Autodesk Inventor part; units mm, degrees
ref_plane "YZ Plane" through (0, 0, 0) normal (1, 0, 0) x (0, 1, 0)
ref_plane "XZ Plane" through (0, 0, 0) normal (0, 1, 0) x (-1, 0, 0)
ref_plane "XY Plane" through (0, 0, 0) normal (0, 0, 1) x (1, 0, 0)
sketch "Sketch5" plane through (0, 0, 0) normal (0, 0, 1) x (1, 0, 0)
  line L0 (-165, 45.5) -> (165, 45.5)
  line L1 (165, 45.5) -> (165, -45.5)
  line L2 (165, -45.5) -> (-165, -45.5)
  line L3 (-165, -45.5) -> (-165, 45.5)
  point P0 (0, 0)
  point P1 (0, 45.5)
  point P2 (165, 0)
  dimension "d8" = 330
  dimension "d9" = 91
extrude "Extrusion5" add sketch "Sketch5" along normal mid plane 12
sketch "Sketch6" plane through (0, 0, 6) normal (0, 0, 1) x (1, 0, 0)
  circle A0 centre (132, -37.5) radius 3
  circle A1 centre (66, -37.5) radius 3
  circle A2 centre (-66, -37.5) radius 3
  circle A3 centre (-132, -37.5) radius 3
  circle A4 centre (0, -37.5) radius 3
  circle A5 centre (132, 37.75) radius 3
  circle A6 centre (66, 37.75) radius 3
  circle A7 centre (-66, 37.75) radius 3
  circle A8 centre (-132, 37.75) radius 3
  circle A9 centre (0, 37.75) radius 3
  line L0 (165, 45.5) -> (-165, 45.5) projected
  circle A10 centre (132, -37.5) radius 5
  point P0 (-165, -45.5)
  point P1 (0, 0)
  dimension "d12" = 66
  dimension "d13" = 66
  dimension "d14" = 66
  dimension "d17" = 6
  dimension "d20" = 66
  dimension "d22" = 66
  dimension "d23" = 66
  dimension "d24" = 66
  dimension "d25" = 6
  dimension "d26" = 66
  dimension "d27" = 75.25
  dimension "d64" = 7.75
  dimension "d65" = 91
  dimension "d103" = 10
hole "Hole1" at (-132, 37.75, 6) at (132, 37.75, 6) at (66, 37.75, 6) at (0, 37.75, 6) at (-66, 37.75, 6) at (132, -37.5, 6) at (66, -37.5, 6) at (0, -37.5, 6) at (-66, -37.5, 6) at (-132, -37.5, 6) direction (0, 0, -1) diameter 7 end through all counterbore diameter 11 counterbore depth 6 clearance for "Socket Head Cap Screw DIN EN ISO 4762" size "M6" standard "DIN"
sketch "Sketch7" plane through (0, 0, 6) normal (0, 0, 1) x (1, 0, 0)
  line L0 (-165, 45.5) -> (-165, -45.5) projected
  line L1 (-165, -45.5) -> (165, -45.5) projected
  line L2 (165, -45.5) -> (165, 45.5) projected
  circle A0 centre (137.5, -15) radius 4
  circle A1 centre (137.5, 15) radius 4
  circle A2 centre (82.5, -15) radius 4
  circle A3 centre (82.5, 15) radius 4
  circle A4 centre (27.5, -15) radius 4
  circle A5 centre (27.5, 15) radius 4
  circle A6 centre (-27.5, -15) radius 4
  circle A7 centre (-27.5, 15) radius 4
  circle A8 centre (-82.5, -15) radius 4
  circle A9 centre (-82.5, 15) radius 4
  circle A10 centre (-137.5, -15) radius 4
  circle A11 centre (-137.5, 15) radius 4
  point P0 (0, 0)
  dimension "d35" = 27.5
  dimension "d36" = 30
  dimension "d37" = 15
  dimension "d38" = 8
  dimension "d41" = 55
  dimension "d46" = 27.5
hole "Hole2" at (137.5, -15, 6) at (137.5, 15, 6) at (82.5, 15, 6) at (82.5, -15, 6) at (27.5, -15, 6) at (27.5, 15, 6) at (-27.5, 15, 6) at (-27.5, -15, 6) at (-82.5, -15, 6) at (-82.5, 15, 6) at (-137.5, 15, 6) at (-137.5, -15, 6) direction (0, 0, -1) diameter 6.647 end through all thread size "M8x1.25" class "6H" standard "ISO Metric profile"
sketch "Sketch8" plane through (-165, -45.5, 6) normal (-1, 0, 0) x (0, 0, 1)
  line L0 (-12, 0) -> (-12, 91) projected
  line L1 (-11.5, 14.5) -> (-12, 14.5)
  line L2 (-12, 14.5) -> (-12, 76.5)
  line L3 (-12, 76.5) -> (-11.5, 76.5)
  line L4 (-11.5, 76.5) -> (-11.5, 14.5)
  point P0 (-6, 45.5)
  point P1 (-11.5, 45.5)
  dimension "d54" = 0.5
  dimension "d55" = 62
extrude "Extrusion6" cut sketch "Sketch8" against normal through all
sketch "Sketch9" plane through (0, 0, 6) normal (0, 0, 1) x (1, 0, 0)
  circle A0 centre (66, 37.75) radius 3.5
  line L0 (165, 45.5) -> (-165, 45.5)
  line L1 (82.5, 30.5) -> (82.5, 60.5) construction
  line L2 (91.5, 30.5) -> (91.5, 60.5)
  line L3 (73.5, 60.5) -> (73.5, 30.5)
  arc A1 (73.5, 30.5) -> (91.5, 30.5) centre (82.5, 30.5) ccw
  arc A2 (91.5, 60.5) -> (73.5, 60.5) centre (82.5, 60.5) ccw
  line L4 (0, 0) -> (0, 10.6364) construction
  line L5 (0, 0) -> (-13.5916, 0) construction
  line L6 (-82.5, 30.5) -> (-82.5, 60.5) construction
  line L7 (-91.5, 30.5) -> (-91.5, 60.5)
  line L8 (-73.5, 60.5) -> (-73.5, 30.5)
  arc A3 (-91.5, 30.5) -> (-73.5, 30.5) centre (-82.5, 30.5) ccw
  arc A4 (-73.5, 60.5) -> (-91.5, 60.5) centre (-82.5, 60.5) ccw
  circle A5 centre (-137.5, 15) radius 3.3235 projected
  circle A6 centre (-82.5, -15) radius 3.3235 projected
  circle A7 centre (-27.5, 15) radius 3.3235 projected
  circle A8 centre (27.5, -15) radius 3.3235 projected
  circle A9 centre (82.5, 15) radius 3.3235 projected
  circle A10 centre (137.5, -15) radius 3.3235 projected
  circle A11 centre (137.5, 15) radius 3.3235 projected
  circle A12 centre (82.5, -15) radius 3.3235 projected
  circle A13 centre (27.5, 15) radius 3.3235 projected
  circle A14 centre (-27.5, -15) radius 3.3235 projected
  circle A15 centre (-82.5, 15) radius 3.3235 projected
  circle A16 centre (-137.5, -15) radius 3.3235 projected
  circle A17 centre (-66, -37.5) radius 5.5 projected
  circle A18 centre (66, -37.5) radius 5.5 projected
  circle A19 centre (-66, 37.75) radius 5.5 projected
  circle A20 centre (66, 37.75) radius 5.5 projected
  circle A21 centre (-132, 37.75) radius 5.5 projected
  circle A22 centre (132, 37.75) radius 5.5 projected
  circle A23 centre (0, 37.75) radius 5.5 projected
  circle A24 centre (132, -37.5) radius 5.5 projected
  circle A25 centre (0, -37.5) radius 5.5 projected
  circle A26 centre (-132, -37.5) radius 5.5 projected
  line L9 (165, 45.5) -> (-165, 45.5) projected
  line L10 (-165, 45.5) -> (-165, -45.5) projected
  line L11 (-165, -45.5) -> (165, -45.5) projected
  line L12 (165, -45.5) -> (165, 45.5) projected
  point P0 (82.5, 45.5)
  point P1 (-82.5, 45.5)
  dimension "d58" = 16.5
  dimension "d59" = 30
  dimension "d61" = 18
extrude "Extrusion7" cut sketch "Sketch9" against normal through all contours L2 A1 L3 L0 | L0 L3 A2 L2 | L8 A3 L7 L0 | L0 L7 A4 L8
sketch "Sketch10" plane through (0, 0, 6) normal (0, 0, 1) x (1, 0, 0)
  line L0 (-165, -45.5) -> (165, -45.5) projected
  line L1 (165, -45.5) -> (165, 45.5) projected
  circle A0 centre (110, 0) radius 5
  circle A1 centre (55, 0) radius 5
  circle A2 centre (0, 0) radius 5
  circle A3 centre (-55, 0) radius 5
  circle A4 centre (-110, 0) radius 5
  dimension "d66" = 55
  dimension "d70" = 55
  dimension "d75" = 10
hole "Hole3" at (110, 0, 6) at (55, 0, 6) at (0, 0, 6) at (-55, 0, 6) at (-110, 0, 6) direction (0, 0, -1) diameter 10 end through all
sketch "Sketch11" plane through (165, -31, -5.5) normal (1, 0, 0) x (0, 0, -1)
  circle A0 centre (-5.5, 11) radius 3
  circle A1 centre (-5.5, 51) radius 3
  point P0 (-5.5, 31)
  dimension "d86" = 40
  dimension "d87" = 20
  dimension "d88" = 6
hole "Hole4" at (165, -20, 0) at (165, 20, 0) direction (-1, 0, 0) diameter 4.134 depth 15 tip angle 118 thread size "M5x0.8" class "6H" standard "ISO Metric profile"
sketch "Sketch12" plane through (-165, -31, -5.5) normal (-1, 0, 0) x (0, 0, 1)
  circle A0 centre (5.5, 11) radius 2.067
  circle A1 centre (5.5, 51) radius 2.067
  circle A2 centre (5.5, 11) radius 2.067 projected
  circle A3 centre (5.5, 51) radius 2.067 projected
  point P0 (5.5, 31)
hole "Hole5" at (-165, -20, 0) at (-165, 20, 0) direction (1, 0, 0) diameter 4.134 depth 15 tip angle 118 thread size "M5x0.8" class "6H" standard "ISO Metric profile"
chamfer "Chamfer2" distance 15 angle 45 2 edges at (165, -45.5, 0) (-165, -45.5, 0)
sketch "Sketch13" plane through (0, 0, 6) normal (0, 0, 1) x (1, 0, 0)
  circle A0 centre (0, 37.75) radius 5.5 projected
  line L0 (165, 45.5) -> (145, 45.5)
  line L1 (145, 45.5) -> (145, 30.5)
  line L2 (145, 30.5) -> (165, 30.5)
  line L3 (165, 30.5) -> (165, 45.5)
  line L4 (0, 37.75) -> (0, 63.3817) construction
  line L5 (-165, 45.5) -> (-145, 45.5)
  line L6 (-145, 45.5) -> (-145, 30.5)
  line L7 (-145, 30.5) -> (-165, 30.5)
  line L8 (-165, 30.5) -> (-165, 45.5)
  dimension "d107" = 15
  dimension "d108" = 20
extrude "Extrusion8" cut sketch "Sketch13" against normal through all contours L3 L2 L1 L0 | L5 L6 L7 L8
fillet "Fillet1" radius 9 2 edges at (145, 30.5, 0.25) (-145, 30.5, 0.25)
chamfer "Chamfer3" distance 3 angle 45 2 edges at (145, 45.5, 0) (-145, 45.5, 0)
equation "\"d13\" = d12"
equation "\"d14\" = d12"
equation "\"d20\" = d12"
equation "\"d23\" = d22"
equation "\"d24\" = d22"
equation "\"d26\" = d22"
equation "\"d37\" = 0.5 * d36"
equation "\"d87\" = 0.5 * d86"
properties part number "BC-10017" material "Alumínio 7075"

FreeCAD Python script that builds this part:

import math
import FreeCAD as App
import Part
import Sketcher

V = App.Vector


def edges_at(feature, points):
    """Names of the edges that pass closest to the given points."""
    edges = feature.Shape.Edges
    near = lambda p: min(range(len(edges)), key=lambda i: edges[i].distToShape(Part.Vertex(*p))[0])
    return sorted({f"Edge{near(p) + 1}" for p in points})

doc = App.newDocument("Part")
body = doc.addObject("PartDesign::Body", "Body")

# Sketch on XY plane
sketch1 = doc.addObject("Sketcher::SketchObject", "Sketch")
body.addObject(sketch1)
sketch1.AttachmentSupport = (doc.XY_Plane, [""])
sketch1.MapMode = "FlatFace"
sketch1.addGeometry(Part.LineSegment(V(165, 46, 0), V(-165, 46, 0)), False)
sketch1.addGeometry(Part.LineSegment(V(-165, 46, 0), V(-165, -46, 0)), False)
sketch1.addGeometry(Part.LineSegment(V(-165, -46, 0), V(165, -46, 0)), False)
sketch1.addGeometry(Part.LineSegment(V(165, -46, 0), V(165, 46, 0)), False)
sketch1.addConstraint(Sketcher.Constraint("Coincident", 0, 2, 1, 1))
sketch1.addConstraint(Sketcher.Constraint("Coincident", 1, 2, 2, 1))
sketch1.addConstraint(Sketcher.Constraint("Coincident", 2, 2, 3, 1))
sketch1.addConstraint(Sketcher.Constraint("Coincident", 3, 2, 0, 1))
sketch1.addConstraint(Sketcher.Constraint("Horizontal", 0))
sketch1.addConstraint(Sketcher.Constraint("Vertical", 1))
sketch1.addConstraint(Sketcher.Constraint("Horizontal", 2))
sketch1.addConstraint(Sketcher.Constraint("Vertical", 3))
sketch1.addConstraint(Sketcher.Constraint("Symmetric", 0, 2, 2, 2, -1, 1))
sketch1.addConstraint(Sketcher.Constraint("DistanceX", 0, 2, 0, 1, 330.0))
sketch1.addConstraint(Sketcher.Constraint("DistanceY", 1, 2, 1, 1, 91.0))
pad1 = doc.addObject("PartDesign::Pad", "Pad")
body.addObject(pad1)
pad1.Profile = sketch1
pad1.Length = 12
pad1.Midplane = True

# Sketch on XY plane
sketch2 = doc.addObject("Sketcher::SketchObject", "Sketch001")
body.addObject(sketch2)
sketch2.AttachmentSupport = (doc.XY_Plane, [""])
sketch2.MapMode = "FlatFace"
sketch2.AttachmentOffset = App.Placement(V(0, 0, 6), App.Rotation())
sketch2.addGeometry(Part.Circle(V(-132, 37.8, 0), V(0, 0, 1), 3.5), False)
sketch2.addGeometry(Part.Circle(V(132, 37.8, 0), V(0, 0, 1), 3.5), False)
sketch2.addGeometry(Part.Circle(V(66, 37.8, 0), V(0, 0, 1), 3.5), False)
sketch2.addGeometry(Part.Circle(V(0, 37.8, 0), V(0, 0, 1), 3.5), False)
sketch2.addGeometry(Part.Circle(V(-66, 37.8, 0), V(0, 0, 1), 3.5), False)
sketch2.addGeometry(Part.Circle(V(132, -37.5, 0), V(0, 0, 1), 3.5), False)
sketch2.addGeometry(Part.Circle(V(66, -37.5, 0), V(0, 0, 1), 3.5), False)
sketch2.addGeometry(Part.Circle(V(0, -37.5, 0), V(0, 0, 1), 3.5), False)
sketch2.addGeometry(Part.Circle(V(-66, -37.5, 0), V(0, 0, 1), 3.5), False)
sketch2.addGeometry(Part.Circle(V(-132, -37.5, 0), V(0, 0, 1), 3.5), False)
sketch2.addConstraint(Sketcher.Constraint("Equal", 0, 1))
sketch2.addConstraint(Sketcher.Constraint("Equal", 1, 2))
sketch2.addConstraint(Sketcher.Constraint("Equal", 2, 3))
sketch2.addConstraint(Sketcher.Constraint("Equal", 3, 4))
sketch2.addConstraint(Sketcher.Constraint("Equal", 4, 5))
sketch2.addConstraint(Sketcher.Constraint("Equal", 5, 6))
sketch2.addConstraint(Sketcher.Constraint("Equal", 6, 7))
sketch2.addConstraint(Sketcher.Constraint("Equal", 7, 8))
sketch2.addConstraint(Sketcher.Constraint("Equal", 8, 9))
sketch2.addConstraint(Sketcher.Constraint("Symmetric", 0, 3, 1, 3, -2))
sketch2.addConstraint(Sketcher.Constraint("Symmetric", 2, 3, 4, 3, -2))
sketch2.addConstraint(Sketcher.Constraint("Symmetric", 6, 3, 8, 3, -2))
sketch2.addConstraint(Sketcher.Constraint("Symmetric", 5, 3, 9, 3, -2))
sketch2.addConstraint(Sketcher.Constraint("PointOnObject", 3, 3, -2))
sketch2.addConstraint(Sketcher.Constraint("PointOnObject", 7, 3, -2))
sketch2.addConstraint(Sketcher.Constraint("Horizontal", 1, 3, 2, 3))
sketch2.addConstraint(Sketcher.Constraint("Horizontal", 2, 3, 3, 3))
sketch2.addConstraint(Sketcher.Constraint("Horizontal", 5, 3, 6, 3))
sketch2.addConstraint(Sketcher.Constraint("Horizontal", 6, 3, 7, 3))
sketch2.addConstraint(Sketcher.Constraint("Vertical", 1, 3, 5, 3))
sketch2.addConstraint(Sketcher.Constraint("Vertical", 2, 3, 6, 3))
sketch2.addConstraint(Sketcher.Constraint("Diameter", 0, 7.0))
sketch2.addConstraint(Sketcher.Constraint("DistanceX", 0, 3, -1, 1, 132.0))
sketch2.addConstraint(Sketcher.Constraint("DistanceX", -1, 1, 2, 3, 66.0))
sketch2.addConstraint(Sketcher.Constraint("DistanceY", 5, 3, -1, 1, 37.5))
sketch2.addConstraint(Sketcher.Constraint("DistanceY", -1, 1, 0, 3, 37.75))
doc.recompute()
hole = doc.addObject("PartDesign::Hole", "Hole")
body.addObject(hole)
hole.Profile = sketch2
hole.ThreadType = "None"
hole.Diameter = 7
hole.DepthType = "ThroughAll"
hole.HoleCutType = "Counterbore"
hole.HoleCutDiameter = 11
hole.HoleCutDepth = 6

# Sketch on XY plane
sketch3 = doc.addObject("Sketcher::SketchObject", "Sketch002")
body.addObject(sketch3)
sketch3.AttachmentSupport = (doc.XY_Plane, [""])
sketch3.MapMode = "FlatFace"
sketch3.AttachmentOffset = App.Placement(V(0, 0, 6), App.Rotation())
sketch3.addGeometry(Part.Circle(V(137.5, -15, 0), V(0, 0, 1), 3.3), False)
sketch3.addGeometry(Part.Circle(V(137.5, 15, 0), V(0, 0, 1), 3.3), False)
sketch3.addGeometry(Part.Circle(V(82.5, 15, 0), V(0, 0, 1), 3.3), False)
sketch3.addGeometry(Part.Circle(V(82.5, -15, 0), V(0, 0, 1), 3.3), False)
sketch3.addGeometry(Part.Circle(V(27.5, -15, 0), V(0, 0, 1), 3.3), False)
sketch3.addGeometry(Part.Circle(V(27.5, 15, 0), V(0, 0, 1), 3.3), False)
sketch3.addGeometry(Part.Circle(V(-27.5, 15, 0), V(0, 0, 1), 3.3), False)
sketch3.addGeometry(Part.Circle(V(-27.5, -15, 0), V(0, 0, 1), 3.3), False)
sketch3.addGeometry(Part.Circle(V(-82.5, -15, 0), V(0, 0, 1), 3.3), False)
sketch3.addGeometry(Part.Circle(V(-82.5, 15, 0), V(0, 0, 1), 3.3), False)
sketch3.addGeometry(Part.Circle(V(-137.5, 15, 0), V(0, 0, 1), 3.3), False)
sketch3.addGeometry(Part.Circle(V(-137.5, -15, 0), V(0, 0, 1), 3.3), False)
sketch3.addConstraint(Sketcher.Constraint("Equal", 0, 1))
sketch3.addConstraint(Sketcher.Constraint("Equal", 1, 2))
sketch3.addConstraint(Sketcher.Constraint("Equal", 2, 3))
sketch3.addConstraint(Sketcher.Constraint("Equal", 3, 4))
sketch3.addConstraint(Sketcher.Constraint("Equal", 4, 5))
sketch3.addConstraint(Sketcher.Constraint("Equal", 5, 6))
sketch3.addConstraint(Sketcher.Constraint("Equal", 6, 7))
sketch3.addConstraint(Sketcher.Constraint("Equal", 7, 8))
sketch3.addConstraint(Sketcher.Constraint("Equal", 8, 9))
sketch3.addConstraint(Sketcher.Constraint("Equal", 9, 10))
sketch3.addConstraint(Sketcher.Constraint("Equal", 10, 11))
sketch3.addConstraint(Sketcher.Constraint("Symmetric", 4, 3, 6, 3, -1, 1))
sketch3.addConstraint(Sketcher.Constraint("Symmetric", 5, 3, 7, 3, -1, 1))
sketch3.addConstraint(Sketcher.Constraint("Symmetric", 2, 3, 8, 3, -1, 1))
sketch3.addConstraint(Sketcher.Constraint("Symmetric", 3, 3, 9, 3, -1, 1))
sketch3.addConstraint(Sketcher.Constraint("Symmetric", 0, 3, 10, 3, -1, 1))
sketch3.addConstraint(Sketcher.Constraint("Symmetric", 1, 3, 11, 3, -1, 1))
sketch3.addConstraint(Sketcher.Constraint("Symmetric", 5, 3, 6, 3, -2))
sketch3.addConstraint(Sketcher.Constraint("Symmetric", 3, 3, 8, 3, -2))
sketch3.addConstraint(Sketcher.Constraint("Symmetric", 1, 3, 10, 3, -2))
sketch3.addConstraint(Sketcher.Constraint("Horizontal", 1, 3, 2, 3))
sketch3.addConstraint(Sketcher.Constraint("Horizontal", 3, 3, 4, 3))
sketch3.addConstraint(Sketcher.Constraint("Diameter", 0, 6.647))
sketch3.addConstraint(Sketcher.Constraint("DistanceY", 0, 3, -1, 1, 15.0))
sketch3.addConstraint(Sketcher.Constraint("DistanceX", 2, 3, 1, 3, 55.0))
sketch3.addConstraint(Sketcher.Constraint("DistanceX", 4, 3, 3, 3, 55.0))
sketch3.addConstraint(Sketcher.Constraint("DistanceX", 6, 3, 5, 3, 55.0))
doc.recompute()
hole2 = doc.addObject("PartDesign::Hole", "Hole001")
body.addObject(hole2)
hole2.Profile = sketch3
hole2.ThreadType = "None"
hole2.Diameter = 6.647
hole2.DepthType = "ThroughAll"

# Sketch on YZ plane
sketch4 = doc.addObject("Sketcher::SketchObject", "Sketch003")
body.addObject(sketch4)
sketch4.AttachmentSupport = (doc.YZ_Plane, [""])
sketch4.MapMode = "FlatFace"
sketch4.AttachmentOffset = App.Placement(V(0, 0, -165), App.Rotation())
sketch4.addGeometry(Part.LineSegment(V(31, -6, 0), V(-31, -6, 0)), False)
sketch4.addGeometry(Part.LineSegment(V(-31, -6, 0), V(-31, -5.5, 0)), False)
sketch4.addGeometry(Part.LineSegment(V(-31, -5.5, 0), V(31, -5.5, 0)), False)
sketch4.addGeometry(Part.LineSegment(V(31, -5.5, 0), V(31, -6, 0)), False)
sketch4.addConstraint(Sketcher.Constraint("Coincident", 0, 2, 1, 1))
sketch4.addConstraint(Sketcher.Constraint("Coincident", 1, 2, 2, 1))
sketch4.addConstraint(Sketcher.Constraint("Coincident", 2, 2, 3, 1))
sketch4.addConstraint(Sketcher.Constraint("Coincident", 3, 2, 0, 1))
sketch4.addConstraint(Sketcher.Constraint("Horizontal", 0))
sketch4.addConstraint(Sketcher.Constraint("Vertical", 1))
sketch4.addConstraint(Sketcher.Constraint("Horizontal", 2))
sketch4.addConstraint(Sketcher.Constraint("Vertical", 3))
sketch4.addConstraint(Sketcher.Constraint("DistanceX", 0, 2, 0, 1, 62.0))
sketch4.addConstraint(Sketcher.Constraint("DistanceY", 1, 1, 1, 2, 0.5))
sketch4.addConstraint(Sketcher.Constraint("DistanceX", 0, 2, -1, 1, 31.0))
sketch4.addConstraint(Sketcher.Constraint("DistanceY", 0, 2, -1, 1, 6.0))
pocket1 = doc.addObject("PartDesign::Pocket", "Pocket")
body.addObject(pocket1)
pocket1.Profile = sketch4
pocket1.Type = "ThroughAll"
pocket1.Reversed = True

# Sketch on XY plane
sketch5 = doc.addObject("Sketcher::SketchObject", "Sketch004")
body.addObject(sketch5)
sketch5.AttachmentSupport = (doc.XY_Plane, [""])
sketch5.MapMode = "FlatFace"
sketch5.AttachmentOffset = App.Placement(V(0, 0, 6), App.Rotation())
sketch5.addGeometry(Part.LineSegment(V(92, 30, 0), V(92, 60, 0)), False)
sketch5.addGeometry(Part.ArcOfCircle(Part.Circle(V(82, 60, 0), V(0, 0, 1), 9), math.radians(0), math.radians(180)), False)
sketch5.addGeometry(Part.LineSegment(V(74, 60, 0), V(74, 30, 0)), False)
sketch5.addGeometry(Part.ArcOfCircle(Part.Circle(V(82, 30, 0), V(0, 0, 1), 9), math.radians(180), math.radians(360)), False)
sketch5.addGeometry(Part.LineSegment(V(-74, 30, 0), V(-74, 60, 0)), False)
sketch5.addGeometry(Part.ArcOfCircle(Part.Circle(V(-82, 60, 0), V(0, 0, 1), 9), math.radians(0), math.radians(180)), False)
sketch5.addGeometry(Part.LineSegment(V(-92, 60, 0), V(-92, 30, 0)), False)
sketch5.addGeometry(Part.ArcOfCircle(Part.Circle(V(-82, 30, 0), V(0, 0, 1), 9), math.radians(180), math.radians(360)), False)
sketch5.addConstraint(Sketcher.Constraint("Tangent", 0, 2, 1, 1))
sketch5.addConstraint(Sketcher.Constraint("Tangent", 1, 2, 2, 1))
sketch5.addConstraint(Sketcher.Constraint("Tangent", 2, 2, 3, 1))
sketch5.addConstraint(Sketcher.Constraint("Tangent", 3, 2, 0, 1))
sketch5.addConstraint(Sketcher.Constraint("Tangent", 4, 2, 5, 1))
sketch5.addConstraint(Sketcher.Constraint("Tangent", 5, 2, 6, 1))
sketch5.addConstraint(Sketcher.Constraint("Tangent", 6, 2, 7, 1))
sketch5.addConstraint(Sketcher.Constraint("Tangent", 7, 2, 4, 1))
sketch5.addConstraint(Sketcher.Constraint("Vertical", 0))
sketch5.addConstraint(Sketcher.Constraint("Vertical", 2))
sketch5.addConstraint(Sketcher.Constraint("Vertical", 4))
sketch5.addConstraint(Sketcher.Constraint("Vertical", 6))
sketch5.addConstraint(Sketcher.Constraint("Equal", 3, 5))
sketch5.addConstraint(Sketcher.Constraint("Symmetric", 1, 3, 5, 3, -2))
sketch5.addConstraint(Sketcher.Constraint("Horizontal", 3, 3, 7, 3))
sketch5.addConstraint(Sketcher.Constraint("Radius", 1, 9.0))
sketch5.addConstraint(Sketcher.Constraint("DistanceY", 0, 1, 0, 2, 30.0))
sketch5.addConstraint(Sketcher.Constraint("DistanceX", 5, 3, 1, 3, 165.0))
sketch5.addConstraint(Sketcher.Constraint("DistanceY", -1, 1, 1, 3, 60.5))
pocket2 = doc.addObject("PartDesign::Pocket", "Pocket001")
body.addObject(pocket2)
pocket2.Profile = sketch5
pocket2.Type = "ThroughAll"

# Sketch on XY plane
sketch6 = doc.addObject("Sketcher::SketchObject", "Sketch005")
body.addObject(sketch6)
sketch6.AttachmentSupport = (doc.XY_Plane, [""])
sketch6.MapMode = "FlatFace"
sketch6.AttachmentOffset = App.Placement(V(0, 0, 6), App.Rotation())
sketch6.addGeometry(Part.Circle(V(110, 0, 0), V(0, 0, 1), 5), False)
sketch6.addGeometry(Part.Circle(V(55, 0, 0), V(0, 0, 1), 5), False)
sketch6.addGeometry(Part.Circle(V(0, 0, 0), V(0, 0, 1), 5), False)
sketch6.addGeometry(Part.Circle(V(-55, 0, 0), V(0, 0, 1), 5), False)
sketch6.addGeometry(Part.Circle(V(-110, 0, 0), V(0, 0, 1), 5), False)
sketch6.addConstraint(Sketcher.Constraint("Coincident", 2, 3, -1, 1))
sketch6.addConstraint(Sketcher.Constraint("Equal", 0, 1))
sketch6.addConstraint(Sketcher.Constraint("Equal", 1, 2))
sketch6.addConstraint(Sketcher.Constraint("Equal", 2, 3))
sketch6.addConstraint(Sketcher.Constraint("Equal", 3, 4))
sketch6.addConstraint(Sketcher.Constraint("Symmetric", 1, 3, 3, 3, -1, 1))
sketch6.addConstraint(Sketcher.Constraint("Symmetric", 0, 3, 4, 3, -1, 1))
sketch6.addConstraint(Sketcher.Constraint("PointOnObject", 0, 3, -1))
sketch6.addConstraint(Sketcher.Constraint("PointOnObject", 1, 3, -1))
sketch6.addConstraint(Sketcher.Constraint("Diameter", 0, 10.0))
sketch6.addConstraint(Sketcher.Constraint("DistanceX", -1, 1, 0, 3, 110.0))
sketch6.addConstraint(Sketcher.Constraint("DistanceX", -1, 1, 1, 3, 55.0))
doc.recompute()
hole3 = doc.addObject("PartDesign::Hole", "Hole002")
body.addObject(hole3)
hole3.Profile = sketch6
hole3.ThreadType = "None"
hole3.Diameter = 10
hole3.DepthType = "ThroughAll"

# Sketch on YZ plane
sketch7 = doc.addObject("Sketcher::SketchObject", "Sketch006")
body.addObject(sketch7)
sketch7.AttachmentSupport = (doc.YZ_Plane, [""])
sketch7.MapMode = "FlatFace"
sketch7.AttachmentOffset = App.Placement(V(0, 0, 165), App.Rotation())
sketch7.addGeometry(Part.Circle(V(-20, 0, 0), V(0, 0, 1), 2.1), False)
sketch7.addGeometry(Part.Circle(V(20, 0, 0), V(0, 0, 1), 2.1), False)
sketch7.addConstraint(Sketcher.Constraint("Equal", 0, 1))
sketch7.addConstraint(Sketcher.Constraint("Symmetric", 0, 3, 1, 3, -1, 1))
sketch7.addConstraint(Sketcher.Constraint("PointOnObject", 0, 3, -1))
sketch7.addConstraint(Sketcher.Constraint("Diameter", 0, 4.134))
sketch7.addConstraint(Sketcher.Constraint("DistanceX", 0, 3, -1, 1, 20.0))
doc.recompute()
hole4 = doc.addObject("PartDesign::Hole", "Hole003")
body.addObject(hole4)
hole4.Profile = sketch7
hole4.ThreadType = "None"
hole4.Diameter = 4.134
hole4.DepthType = "Dimension"
hole4.Depth = 15
hole4.DrillPoint = "Angled"
hole4.DrillPointAngle = 118

# Sketch on YZ plane
sketch8 = doc.addObject("Sketcher::SketchObject", "Sketch007")
body.addObject(sketch8)
sketch8.AttachmentSupport = (doc.YZ_Plane, [""])
sketch8.MapMode = "FlatFace"
sketch8.AttachmentOffset = App.Placement(V(0, 0, -165), App.Rotation())
sketch8.addGeometry(Part.Circle(V(-20, 0, 0), V(0, 0, 1), 2.1), False)
sketch8.addGeometry(Part.Circle(V(20, 0, 0), V(0, 0, 1), 2.1), False)
sketch8.addConstraint(Sketcher.Constraint("Equal", 0, 1))
sketch8.addConstraint(Sketcher.Constraint("Symmetric", 0, 3, 1, 3, -1, 1))
sketch8.addConstraint(Sketcher.Constraint("PointOnObject", 0, 3, -1))
sketch8.addConstraint(Sketcher.Constraint("Diameter", 0, 4.134))
sketch8.addConstraint(Sketcher.Constraint("DistanceX", 0, 3, -1, 1, 20.0))
doc.recompute()
hole5 = doc.addObject("PartDesign::Hole", "Hole004")
body.addObject(hole5)
hole5.Profile = sketch8
hole5.ThreadType = "None"
hole5.Diameter = 4.134
hole5.DepthType = "Dimension"
hole5.Depth = 15
hole5.DrillPoint = "Angled"
hole5.DrillPointAngle = 118
hole5.Reversed = True
doc.recompute()

chamfer = doc.addObject("PartDesign::Chamfer", "Chamfer")
body.addObject(chamfer)
chamfer.Base = (hole5, edges_at(hole5, [(165, -45.5, 0), (-165, -45.5, 0)]))
chamfer.Size = 15

# Sketch on XY plane
sketch9 = doc.addObject("Sketcher::SketchObject", "Sketch008")
body.addObject(sketch9)
sketch9.AttachmentSupport = (doc.XY_Plane, [""])
sketch9.MapMode = "FlatFace"
sketch9.AttachmentOffset = App.Placement(V(0, 0, 6), App.Rotation())
sketch9.addGeometry(Part.LineSegment(V(165, 30, 0), V(165, 46, 0)), False)
sketch9.addGeometry(Part.LineSegment(V(165, 46, 0), V(145, 46, 0)), False)
sketch9.addGeometry(Part.LineSegment(V(145, 46, 0), V(145, 30, 0)), False)
sketch9.addGeometry(Part.LineSegment(V(145, 30, 0), V(165, 30, 0)), False)
sketch9.addGeometry(Part.LineSegment(V(-145, 46, 0), V(-165, 46, 0)), False)
sketch9.addGeometry(Part.LineSegment(V(-165, 46, 0), V(-165, 30, 0)), False)
sketch9.addGeometry(Part.LineSegment(V(-165, 30, 0), V(-145, 30, 0)), False)
sketch9.addGeometry(Part.LineSegment(V(-145, 30, 0), V(-145, 46, 0)), False)
sketch9.addConstraint(Sketcher.Constraint("Coincident", 0, 2, 1, 1))
sketch9.addConstraint(Sketcher.Constraint("Coincident", 1, 2, 2, 1))
sketch9.addConstraint(Sketcher.Constraint("Coincident", 2, 2, 3, 1))
sketch9.addConstraint(Sketcher.Constraint("Coincident", 3, 2, 0, 1))
sketch9.addConstraint(Sketcher.Constraint("Coincident", 4, 2, 5, 1))
sketch9.addConstraint(Sketcher.Constraint("Coincident", 5, 2, 6, 1))
sketch9.addConstraint(Sketcher.Constraint("Coincident", 6, 2, 7, 1))
sketch9.addConstraint(Sketcher.Constraint("Coincident", 7, 2, 4, 1))
sketch9.addConstraint(Sketcher.Constraint("Vertical", 0))
sketch9.addConstraint(Sketcher.Constraint("Horizontal", 1))
sketch9.addConstraint(Sketcher.Constraint("Vertical", 2))
sketch9.addConstraint(Sketcher.Constraint("Horizontal", 3))
sketch9.addConstraint(Sketcher.Constraint("Horizontal", 4))
sketch9.addConstraint(Sketcher.Constraint("Vertical", 5))
sketch9.addConstraint(Sketcher.Constraint("Horizontal", 6))
sketch9.addConstraint(Sketcher.Constraint("Vertical", 7))
sketch9.addConstraint(Sketcher.Constraint("Symmetric", 0, 2, 4, 2, -2))
sketch9.addConstraint(Sketcher.Constraint("Symmetric", 2, 2, 6, 2, -2))
sketch9.addConstraint(Sketcher.Constraint("DistanceX", 1, 2, 1, 1, 20.0))
sketch9.addConstraint(Sketcher.Constraint("DistanceY", 0, 1, 0, 2, 15.0))
sketch9.addConstraint(Sketcher.Constraint("DistanceX", -1, 1, 0, 2, 165.0))
sketch9.addConstraint(Sketcher.Constraint("DistanceY", -1, 1, 0, 2, 45.5))
pocket3 = doc.addObject("PartDesign::Pocket", "Pocket002")
body.addObject(pocket3)
pocket3.Profile = sketch9
pocket3.Type = "ThroughAll"
doc.recompute()

fillet = doc.addObject("PartDesign::Fillet", "Fillet")
body.addObject(fillet)
fillet.Base = (pocket3, edges_at(pocket3, [(145, 30.5, 0.25), (-145, 30.5, 0.25)]))
fillet.Radius = 9
doc.recompute()

chamfer2 = doc.addObject("PartDesign::Chamfer", "Chamfer001")
body.addObject(chamfer2)
chamfer2.Base = (fillet, edges_at(fillet, [(145, 45.5, 0), (-145, 45.5, 0)]))
chamfer2.Size = 3

doc.recompute()
